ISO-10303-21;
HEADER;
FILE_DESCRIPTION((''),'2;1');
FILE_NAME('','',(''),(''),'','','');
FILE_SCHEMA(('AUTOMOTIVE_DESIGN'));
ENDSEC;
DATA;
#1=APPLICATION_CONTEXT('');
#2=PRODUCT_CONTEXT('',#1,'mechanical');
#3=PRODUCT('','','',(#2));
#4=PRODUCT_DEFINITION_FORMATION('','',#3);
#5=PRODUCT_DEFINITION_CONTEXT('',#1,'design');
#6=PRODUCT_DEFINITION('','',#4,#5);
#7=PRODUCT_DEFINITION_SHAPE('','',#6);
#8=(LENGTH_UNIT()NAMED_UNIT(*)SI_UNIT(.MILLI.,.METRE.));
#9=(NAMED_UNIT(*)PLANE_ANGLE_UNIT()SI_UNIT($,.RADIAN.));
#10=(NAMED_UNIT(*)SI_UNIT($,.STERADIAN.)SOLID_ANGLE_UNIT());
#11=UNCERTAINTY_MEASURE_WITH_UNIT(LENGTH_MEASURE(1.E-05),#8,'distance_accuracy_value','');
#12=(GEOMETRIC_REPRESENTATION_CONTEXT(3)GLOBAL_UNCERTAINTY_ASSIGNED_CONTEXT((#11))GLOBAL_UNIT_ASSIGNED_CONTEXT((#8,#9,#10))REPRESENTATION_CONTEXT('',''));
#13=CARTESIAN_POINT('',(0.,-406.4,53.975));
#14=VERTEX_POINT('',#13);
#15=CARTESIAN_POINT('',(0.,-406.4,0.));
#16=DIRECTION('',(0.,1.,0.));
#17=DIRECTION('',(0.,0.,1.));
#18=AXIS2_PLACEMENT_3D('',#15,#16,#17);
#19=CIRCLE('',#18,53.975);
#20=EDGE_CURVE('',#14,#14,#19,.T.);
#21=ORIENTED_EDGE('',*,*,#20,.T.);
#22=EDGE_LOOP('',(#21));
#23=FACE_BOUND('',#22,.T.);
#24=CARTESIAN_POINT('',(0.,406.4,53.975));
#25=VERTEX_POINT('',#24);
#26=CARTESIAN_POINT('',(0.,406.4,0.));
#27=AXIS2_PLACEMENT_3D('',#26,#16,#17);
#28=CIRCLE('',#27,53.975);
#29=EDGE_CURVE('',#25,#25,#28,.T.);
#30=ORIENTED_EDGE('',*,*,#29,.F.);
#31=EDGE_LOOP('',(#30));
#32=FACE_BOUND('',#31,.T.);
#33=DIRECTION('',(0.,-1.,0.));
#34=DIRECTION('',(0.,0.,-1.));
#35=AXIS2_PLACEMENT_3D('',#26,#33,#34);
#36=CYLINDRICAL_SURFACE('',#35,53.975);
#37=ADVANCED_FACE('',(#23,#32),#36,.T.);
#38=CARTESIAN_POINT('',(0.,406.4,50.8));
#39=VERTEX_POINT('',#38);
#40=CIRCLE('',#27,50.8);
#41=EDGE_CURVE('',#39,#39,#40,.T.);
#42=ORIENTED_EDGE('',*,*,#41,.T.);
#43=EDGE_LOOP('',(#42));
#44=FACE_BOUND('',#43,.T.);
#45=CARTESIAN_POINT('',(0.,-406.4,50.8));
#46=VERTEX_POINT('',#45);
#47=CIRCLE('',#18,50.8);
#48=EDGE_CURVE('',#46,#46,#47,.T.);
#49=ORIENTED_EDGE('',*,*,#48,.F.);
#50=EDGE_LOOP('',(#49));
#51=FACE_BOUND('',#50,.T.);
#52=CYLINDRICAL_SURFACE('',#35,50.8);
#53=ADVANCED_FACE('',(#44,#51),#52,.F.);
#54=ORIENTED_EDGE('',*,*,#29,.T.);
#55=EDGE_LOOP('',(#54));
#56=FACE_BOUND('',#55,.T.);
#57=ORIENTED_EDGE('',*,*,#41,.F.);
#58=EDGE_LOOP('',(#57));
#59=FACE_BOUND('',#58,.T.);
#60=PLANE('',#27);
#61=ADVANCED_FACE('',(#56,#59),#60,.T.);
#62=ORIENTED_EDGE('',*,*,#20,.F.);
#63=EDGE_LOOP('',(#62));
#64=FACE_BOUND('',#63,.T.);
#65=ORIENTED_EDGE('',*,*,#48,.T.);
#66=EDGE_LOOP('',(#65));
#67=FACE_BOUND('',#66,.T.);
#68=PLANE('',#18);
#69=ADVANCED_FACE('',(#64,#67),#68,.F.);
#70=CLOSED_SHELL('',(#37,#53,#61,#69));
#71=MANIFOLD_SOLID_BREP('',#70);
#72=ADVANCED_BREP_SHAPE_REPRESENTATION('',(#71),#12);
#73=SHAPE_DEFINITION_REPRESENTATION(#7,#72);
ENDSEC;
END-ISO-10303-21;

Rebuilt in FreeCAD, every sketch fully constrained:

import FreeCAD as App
import Part
import Sketcher
Q = App.Units.Quantity

doc = App.newDocument("Part")
params = doc.addObject("Spreadsheet::Sheet", "Params")
for row, (alias, value) in enumerate([
    ("sketch1_diameter", "4 in"),
    ("sketch1_diameter2", "4.25 in"),
    ("pad1_length", "32 in"),
], start=1):
    params.set(f"A{row}", alias)
    params.set(f"B{row}", "=" + value)
    params.setAlias(f"B{row}", alias)

body = doc.addObject("PartDesign::Body", "Body")

# Sketch on XZ plane
sketch1 = body.newObject("Sketcher::SketchObject", "Sketch")
sketch1.AttachmentSupport = (doc.getObject("XZ_Plane"), [""])
sketch1.MapMode = "FlatFace"
sketch1.addGeometry([
    Part.Circle(App.Vector(0, 0, 0), App.Vector(0, 0, 1), 54),
    Part.Circle(App.Vector(0, 0, 0), App.Vector(0, 0, 1), 51),
], False)
sketch1.addConstraint([
    Sketcher.Constraint("Coincident", 0, 3, -1, 1),
    Sketcher.Constraint("Coincident", 1, 3, -1, 1),
    Sketcher.Constraint("Diameter", 1, Q("4 in")),
    Sketcher.Constraint("Diameter", 0, Q("4.25 in")),
])
sketch1.setExpression("Constraints[2]", "Params.sketch1_diameter")
sketch1.setExpression("Constraints[3]", "Params.sketch1_diameter2")
pad1 = body.newObject("PartDesign::Pad", "Pad")
pad1.Profile = sketch1
pad1.setExpression("Length", "Params.pad1_length")
pad1.Midplane = True

doc.recompute()
